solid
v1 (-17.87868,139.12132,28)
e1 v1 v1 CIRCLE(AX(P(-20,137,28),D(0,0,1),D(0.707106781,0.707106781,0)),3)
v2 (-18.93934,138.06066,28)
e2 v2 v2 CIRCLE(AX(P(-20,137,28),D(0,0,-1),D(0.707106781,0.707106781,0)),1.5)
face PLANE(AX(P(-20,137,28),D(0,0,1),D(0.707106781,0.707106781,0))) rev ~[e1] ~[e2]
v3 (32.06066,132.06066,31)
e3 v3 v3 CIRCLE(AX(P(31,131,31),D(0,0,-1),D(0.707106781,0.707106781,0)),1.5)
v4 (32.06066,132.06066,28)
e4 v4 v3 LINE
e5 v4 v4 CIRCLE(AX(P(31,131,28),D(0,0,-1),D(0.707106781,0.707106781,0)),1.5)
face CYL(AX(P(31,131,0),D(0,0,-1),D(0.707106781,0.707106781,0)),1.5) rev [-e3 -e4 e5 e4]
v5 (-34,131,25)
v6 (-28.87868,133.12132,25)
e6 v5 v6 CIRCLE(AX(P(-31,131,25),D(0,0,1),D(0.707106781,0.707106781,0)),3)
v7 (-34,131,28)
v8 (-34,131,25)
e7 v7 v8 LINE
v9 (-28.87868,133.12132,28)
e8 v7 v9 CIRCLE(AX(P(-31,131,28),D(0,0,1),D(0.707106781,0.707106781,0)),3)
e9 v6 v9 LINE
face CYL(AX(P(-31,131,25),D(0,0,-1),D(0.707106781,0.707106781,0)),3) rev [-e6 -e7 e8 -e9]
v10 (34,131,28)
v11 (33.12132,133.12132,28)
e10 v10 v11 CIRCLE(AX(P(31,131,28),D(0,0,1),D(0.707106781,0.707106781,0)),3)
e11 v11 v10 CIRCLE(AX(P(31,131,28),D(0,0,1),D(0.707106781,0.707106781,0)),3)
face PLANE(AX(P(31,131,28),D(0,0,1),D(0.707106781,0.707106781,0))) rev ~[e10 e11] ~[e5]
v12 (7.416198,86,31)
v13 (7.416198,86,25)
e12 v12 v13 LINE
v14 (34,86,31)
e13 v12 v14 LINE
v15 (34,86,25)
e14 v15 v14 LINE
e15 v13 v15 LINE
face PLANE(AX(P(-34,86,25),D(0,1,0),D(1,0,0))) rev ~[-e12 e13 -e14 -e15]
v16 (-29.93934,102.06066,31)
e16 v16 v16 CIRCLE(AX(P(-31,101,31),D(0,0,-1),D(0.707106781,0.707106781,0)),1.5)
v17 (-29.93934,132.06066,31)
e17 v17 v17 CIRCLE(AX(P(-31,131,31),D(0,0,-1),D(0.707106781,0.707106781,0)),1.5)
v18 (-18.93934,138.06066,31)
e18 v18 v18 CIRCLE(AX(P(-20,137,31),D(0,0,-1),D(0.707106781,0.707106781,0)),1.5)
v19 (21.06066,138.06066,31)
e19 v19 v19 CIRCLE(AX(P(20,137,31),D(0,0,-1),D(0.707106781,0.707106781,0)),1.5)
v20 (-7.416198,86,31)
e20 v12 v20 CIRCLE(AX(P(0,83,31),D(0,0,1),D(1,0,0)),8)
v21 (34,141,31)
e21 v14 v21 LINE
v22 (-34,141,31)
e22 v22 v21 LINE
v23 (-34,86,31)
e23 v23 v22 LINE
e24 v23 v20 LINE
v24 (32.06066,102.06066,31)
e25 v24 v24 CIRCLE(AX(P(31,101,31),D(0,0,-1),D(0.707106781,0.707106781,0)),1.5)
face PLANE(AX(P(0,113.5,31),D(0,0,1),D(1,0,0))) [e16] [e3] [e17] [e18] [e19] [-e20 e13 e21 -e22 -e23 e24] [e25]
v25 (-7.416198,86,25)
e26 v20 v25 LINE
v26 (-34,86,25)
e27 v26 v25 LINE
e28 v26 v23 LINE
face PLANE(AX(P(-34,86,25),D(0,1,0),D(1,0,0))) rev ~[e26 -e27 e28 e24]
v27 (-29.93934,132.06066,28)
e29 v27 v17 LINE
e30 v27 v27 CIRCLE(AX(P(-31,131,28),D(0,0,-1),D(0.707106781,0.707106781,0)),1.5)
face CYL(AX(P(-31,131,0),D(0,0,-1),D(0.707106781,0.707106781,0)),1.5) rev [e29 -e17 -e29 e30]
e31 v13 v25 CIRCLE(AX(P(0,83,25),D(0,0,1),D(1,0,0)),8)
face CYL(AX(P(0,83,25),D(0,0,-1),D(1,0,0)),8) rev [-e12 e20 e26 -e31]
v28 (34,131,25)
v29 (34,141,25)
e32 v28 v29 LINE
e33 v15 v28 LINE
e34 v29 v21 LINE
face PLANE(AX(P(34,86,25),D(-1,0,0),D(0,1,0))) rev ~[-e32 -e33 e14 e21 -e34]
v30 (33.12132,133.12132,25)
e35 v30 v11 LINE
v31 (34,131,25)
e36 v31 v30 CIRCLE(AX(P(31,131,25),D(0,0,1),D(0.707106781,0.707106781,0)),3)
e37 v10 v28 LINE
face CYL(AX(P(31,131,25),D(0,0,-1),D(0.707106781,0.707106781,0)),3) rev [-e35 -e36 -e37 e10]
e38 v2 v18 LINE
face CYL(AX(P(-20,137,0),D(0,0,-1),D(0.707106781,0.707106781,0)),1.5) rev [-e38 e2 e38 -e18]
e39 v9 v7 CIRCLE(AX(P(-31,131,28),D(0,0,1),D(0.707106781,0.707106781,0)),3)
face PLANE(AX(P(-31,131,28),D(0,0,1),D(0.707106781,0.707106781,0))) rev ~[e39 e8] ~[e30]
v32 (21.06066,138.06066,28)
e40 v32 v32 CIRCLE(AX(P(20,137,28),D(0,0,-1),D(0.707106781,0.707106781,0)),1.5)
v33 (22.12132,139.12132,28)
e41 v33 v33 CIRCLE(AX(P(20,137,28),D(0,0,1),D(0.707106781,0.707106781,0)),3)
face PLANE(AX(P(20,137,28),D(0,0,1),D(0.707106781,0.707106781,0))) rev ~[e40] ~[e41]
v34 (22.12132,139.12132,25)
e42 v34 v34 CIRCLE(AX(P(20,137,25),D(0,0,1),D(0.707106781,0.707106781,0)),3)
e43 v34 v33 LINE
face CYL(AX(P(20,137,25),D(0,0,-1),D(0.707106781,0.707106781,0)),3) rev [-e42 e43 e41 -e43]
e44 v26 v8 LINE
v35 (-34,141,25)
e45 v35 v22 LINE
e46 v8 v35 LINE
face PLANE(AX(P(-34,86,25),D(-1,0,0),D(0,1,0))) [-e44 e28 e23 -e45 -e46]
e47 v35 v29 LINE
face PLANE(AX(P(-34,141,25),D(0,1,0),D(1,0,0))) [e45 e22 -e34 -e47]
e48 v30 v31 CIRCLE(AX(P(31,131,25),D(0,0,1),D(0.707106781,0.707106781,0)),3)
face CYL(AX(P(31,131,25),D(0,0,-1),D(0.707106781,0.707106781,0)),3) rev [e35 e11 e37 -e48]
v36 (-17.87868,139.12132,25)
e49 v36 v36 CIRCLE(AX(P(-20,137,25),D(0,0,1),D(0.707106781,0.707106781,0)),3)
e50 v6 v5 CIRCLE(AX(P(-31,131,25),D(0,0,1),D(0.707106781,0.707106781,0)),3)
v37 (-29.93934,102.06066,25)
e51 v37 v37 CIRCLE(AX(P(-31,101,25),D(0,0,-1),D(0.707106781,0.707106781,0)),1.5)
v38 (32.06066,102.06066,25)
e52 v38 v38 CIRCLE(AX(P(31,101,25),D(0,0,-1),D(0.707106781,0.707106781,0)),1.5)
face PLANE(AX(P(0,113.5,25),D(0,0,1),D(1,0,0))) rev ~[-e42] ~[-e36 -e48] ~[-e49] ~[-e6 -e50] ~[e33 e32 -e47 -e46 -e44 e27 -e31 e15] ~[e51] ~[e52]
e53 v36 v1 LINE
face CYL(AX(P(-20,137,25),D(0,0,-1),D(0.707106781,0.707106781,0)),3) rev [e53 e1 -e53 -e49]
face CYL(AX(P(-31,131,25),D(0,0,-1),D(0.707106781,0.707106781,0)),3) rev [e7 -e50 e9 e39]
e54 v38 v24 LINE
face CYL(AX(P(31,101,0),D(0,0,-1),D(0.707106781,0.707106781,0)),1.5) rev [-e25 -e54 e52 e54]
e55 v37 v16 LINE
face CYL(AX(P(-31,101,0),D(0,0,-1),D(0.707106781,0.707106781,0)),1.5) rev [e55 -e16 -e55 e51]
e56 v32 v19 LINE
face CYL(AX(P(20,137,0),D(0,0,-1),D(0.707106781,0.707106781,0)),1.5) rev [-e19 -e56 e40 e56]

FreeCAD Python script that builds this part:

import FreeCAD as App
import Part
import Sketcher


def add_polygon(sketch, points):
    """Adds a closed chain of lines whose ends are joined by coincident constraints."""
    first, n = sketch.GeometryCount, len(points)
    for a, b in zip(points, points[1:] + points[:1]):
        sketch.addGeometry(Part.LineSegment(App.Vector(*a, 0), App.Vector(*b, 0)), False)
    for i in range(n):
        sketch.addConstraint(Sketcher.Constraint("Coincident", first + i, 2, first + (i + 1) % n, 1))

doc = App.newDocument("Part")
body = doc.addObject("PartDesign::Body", "Body")

# Sketch on XY plane
sketch1 = body.newObject("Sketcher::SketchObject", "Sketch")
sketch1.AttachmentSupport = (doc.getObject("XY_Plane"), [""])
sketch1.MapMode = "FlatFace"
sketch1.addGeometry(Part.Circle(App.Vector(0, 0, 0), App.Vector(0, 0, 1), 1.5), False)
sketch1.addConstraint([
    Sketcher.Constraint("Coincident", 0, 3, -1, 1),
    Sketcher.Constraint("Diameter", 0, 3.0),
])
pad1 = body.newObject("PartDesign::Pad", "Pad")
pad1.Profile = sketch1
pad1.Length = 50
body2 = doc.addObject("PartDesign::Body", "Body001")
doc.recompute()

body.Placement = App.Placement(App.Vector(20, 137, 0), App.Rotation(App.Vector(0, 0, 1), 45))
boolean = body2.newObject("PartDesign::Boolean", "Boolean")
boolean.Type = "Fuse"
boolean.addObjects([body])
body3 = doc.addObject("PartDesign::Body", "Body002")

# Sketch on XY plane
sketch2 = body3.newObject("Sketcher::SketchObject", "Sketch001")
sketch2.AttachmentSupport = (doc.getObject("XY_Plane002"), [""])
sketch2.MapMode = "FlatFace"
sketch2.addGeometry(Part.Circle(App.Vector(0, 0, 0), App.Vector(0, 0, 1), 1.5), False)
sketch2.addConstraint([
    Sketcher.Constraint("Coincident", 0, 3, -1, 1),
    Sketcher.Constraint("Diameter", 0, 3.0),
])
pad2 = body3.newObject("PartDesign::Pad", "Pad001")
pad2.Profile = sketch2
pad2.Length = 50
body4 = doc.addObject("PartDesign::Body", "Body003")
body4.AllowCompound = True
doc.recompute()

body3.Placement = App.Placement(App.Vector(-20, 137, 0), App.Rotation(App.Vector(0, 0, 1), 45))
boolean2 = body4.newObject("PartDesign::Boolean", "Boolean001")
boolean2.Type = "Fuse"
boolean2.addObjects([body3])
doc.recompute()

boolean3 = body4.newObject("PartDesign::Boolean", "Boolean002")
boolean3.Type = "Fuse"
boolean3.addObjects([body2])
body5 = doc.addObject("PartDesign::Body", "Body004")

# Sketch on XY plane
sketch3 = body5.newObject("Sketcher::SketchObject", "Sketch002")
sketch3.AttachmentSupport = (doc.getObject("XY_Plane004"), [""])
sketch3.MapMode = "FlatFace"
sketch3.addGeometry(Part.Circle(App.Vector(0, 0, 0), App.Vector(0, 0, 1), 1.5), False)
sketch3.addConstraint([
    Sketcher.Constraint("Coincident", 0, 3, -1, 1),
    Sketcher.Constraint("Diameter", 0, 3.0),
])
pad3 = body5.newObject("PartDesign::Pad", "Pad002")
pad3.Profile = sketch3
pad3.Length = 50
body6 = doc.addObject("PartDesign::Body", "Body005")
doc.recompute()

body5.Placement = App.Placement(App.Vector(31, 131, 0), App.Rotation(App.Vector(0, 0, 1), 45))
boolean4 = body6.newObject("PartDesign::Boolean", "Boolean003")
boolean4.Type = "Fuse"
boolean4.addObjects([body5])
body7 = doc.addObject("PartDesign::Body", "Body006")

# Sketch on XY plane
sketch4 = body7.newObject("Sketcher::SketchObject", "Sketch003")
sketch4.AttachmentSupport = (doc.getObject("XY_Plane006"), [""])
sketch4.MapMode = "FlatFace"
sketch4.addGeometry(Part.Circle(App.Vector(0, 0, 0), App.Vector(0, 0, 1), 1.5), False)
sketch4.addConstraint([
    Sketcher.Constraint("Coincident", 0, 3, -1, 1),
    Sketcher.Constraint("Diameter", 0, 3.0),
])
pad4 = body7.newObject("PartDesign::Pad", "Pad003")
pad4.Profile = sketch4
pad4.Length = 50
body8 = doc.addObject("PartDesign::Body", "Body007")
body8.AllowCompound = True
doc.recompute()

body7.Placement = App.Placement(App.Vector(-31, 131, 0), App.Rotation(App.Vector(0, 0, 1), 45))
boolean5 = body8.newObject("PartDesign::Boolean", "Boolean004")
boolean5.Type = "Fuse"
boolean5.addObjects([body7])
doc.recompute()

boolean6 = body8.newObject("PartDesign::Boolean", "Boolean005")
boolean6.Type = "Fuse"
boolean6.addObjects([body6])
body9 = doc.addObject("PartDesign::Body", "Body008")

# Sketch on XY plane
sketch5 = body9.newObject("Sketcher::SketchObject", "Sketch004")
sketch5.AttachmentSupport = (doc.getObject("XY_Plane008"), [""])
sketch5.MapMode = "FlatFace"
sketch5.addGeometry(Part.Circle(App.Vector(0, 0, 0), App.Vector(0, 0, 1), 1.5), False)
sketch5.addConstraint([
    Sketcher.Constraint("Coincident", 0, 3, -1, 1),
    Sketcher.Constraint("Diameter", 0, 3.0),
])
pad5 = body9.newObject("PartDesign::Pad", "Pad004")
pad5.Profile = sketch5
pad5.Length = 50
body10 = doc.addObject("PartDesign::Body", "Body009")
doc.recompute()

body9.Placement = App.Placement(App.Vector(31, 101, 0), App.Rotation(App.Vector(0, 0, 1), 45))
boolean7 = body10.newObject("PartDesign::Boolean", "Boolean006")
boolean7.Type = "Fuse"
boolean7.addObjects([body9])
body11 = doc.addObject("PartDesign::Body", "Body010")

# Sketch on XY plane
sketch6 = body11.newObject("Sketcher::SketchObject", "Sketch005")
sketch6.AttachmentSupport = (doc.getObject("XY_Plane010"), [""])
sketch6.MapMode = "FlatFace"
sketch6.addGeometry(Part.Circle(App.Vector(0, 0, 0), App.Vector(0, 0, 1), 1.5), False)
sketch6.addConstraint([
    Sketcher.Constraint("Coincident", 0, 3, -1, 1),
    Sketcher.Constraint("Diameter", 0, 3.0),
])
pad6 = body11.newObject("PartDesign::Pad", "Pad005")
pad6.Profile = sketch6
pad6.Length = 50
body12 = doc.addObject("PartDesign::Body", "Body011")
body12.AllowCompound = True
doc.recompute()

body11.Placement = App.Placement(App.Vector(-31, 101, 0), App.Rotation(App.Vector(0, 0, 1), 45))
boolean8 = body12.newObject("PartDesign::Boolean", "Boolean007")
boolean8.Type = "Fuse"
boolean8.addObjects([body11])
doc.recompute()

boolean9 = body12.newObject("PartDesign::Boolean", "Boolean008")
boolean9.Type = "Fuse"
boolean9.addObjects([body10])
doc.recompute()

boolean10 = body12.newObject("PartDesign::Boolean", "Boolean009")
boolean10.Type = "Fuse"
boolean10.addObjects([body4])
doc.recompute()

boolean11 = body12.newObject("PartDesign::Boolean", "Boolean010")
boolean11.Type = "Fuse"
boolean11.addObjects([body8])
body13 = doc.addObject("PartDesign::Body", "Body012")

# Sketch on XY plane
sketch7 = body13.newObject("Sketcher::SketchObject", "Sketch006")
sketch7.AttachmentSupport = (doc.getObject("XY_Plane012"), [""])
sketch7.MapMode = "FlatFace"
sketch7.addGeometry(Part.Circle(App.Vector(0, 0, 0), App.Vector(0, 0, 1), 3), False)
sketch7.addConstraint([
    Sketcher.Constraint("Coincident", 0, 3, -1, 1),
    Sketcher.Constraint("Diameter", 0, 6.0),
])
pad7 = body13.newObject("PartDesign::Pad", "Pad006")
pad7.Profile = sketch7
pad7.Length = 3
body14 = doc.addObject("PartDesign::Body", "Body013")
doc.recompute()

body13.Placement = App.Placement(App.Vector(31, 131, 0), App.Rotation(App.Vector(0, 0, 1), 45))
boolean12 = body14.newObject("PartDesign::Boolean", "Boolean011")
boolean12.Type = "Fuse"
boolean12.addObjects([body13])
body15 = doc.addObject("PartDesign::Body", "Body014")

# Sketch on XY plane
sketch8 = body15.newObject("Sketcher::SketchObject", "Sketch007")
sketch8.AttachmentSupport = (doc.getObject("XY_Plane014"), [""])
sketch8.MapMode = "FlatFace"
sketch8.addGeometry(Part.Circle(App.Vector(0, 0, 0), App.Vector(0, 0, 1), 3), False)
sketch8.addConstraint([
    Sketcher.Constraint("Coincident", 0, 3, -1, 1),
    Sketcher.Constraint("Diameter", 0, 6.0),
])
pad8 = body15.newObject("PartDesign::Pad", "Pad007")
pad8.Profile = sketch8
pad8.Length = 3
body16 = doc.addObject("PartDesign::Body", "Body015")
body16.AllowCompound = True
doc.recompute()

body15.Placement = App.Placement(App.Vector(-31, 131, 0), App.Rotation(App.Vector(0, 0, 1), 45))
boolean13 = body16.newObject("PartDesign::Boolean", "Boolean012")
boolean13.Type = "Fuse"
boolean13.addObjects([body15])
doc.recompute()

boolean14 = body16.newObject("PartDesign::Boolean", "Boolean013")
boolean14.Type = "Fuse"
boolean14.addObjects([body14])
body17 = doc.addObject("PartDesign::Body", "Body016")
body17.AllowCompound = True
doc.recompute()

body16.Placement = App.Placement(App.Vector(0, 0, 25), App.Rotation(App.Vector(0, 0, 1), 0))
boolean15 = body17.newObject("PartDesign::Boolean", "Boolean014")
boolean15.Type = "Fuse"
boolean15.addObjects([body16])
body18 = doc.addObject("PartDesign::Body", "Body017")

# Sketch on XY plane
sketch9 = body18.newObject("Sketcher::SketchObject", "Sketch008")
sketch9.AttachmentSupport = (doc.getObject("XY_Plane017"), [""])
sketch9.MapMode = "FlatFace"
sketch9.addGeometry(Part.Circle(App.Vector(0, 0, 0), App.Vector(0, 0, 1), 3), False)
sketch9.addConstraint([
    Sketcher.Constraint("Coincident", 0, 3, -1, 1),
    Sketcher.Constraint("Diameter", 0, 6.0),
])
pad9 = body18.newObject("PartDesign::Pad", "Pad008")
pad9.Profile = sketch9
pad9.Length = 3
body19 = doc.addObject("PartDesign::Body", "Body018")
doc.recompute()

body18.Placement = App.Placement(App.Vector(31, 101, 0), App.Rotation(App.Vector(0, 0, 1), 45))
boolean16 = body19.newObject("PartDesign::Boolean", "Boolean015")
boolean16.Type = "Fuse"
boolean16.addObjects([body18])
body20 = doc.addObject("PartDesign::Body", "Body019")

# Sketch on XY plane
sketch10 = body20.newObject("Sketcher::SketchObject", "Sketch009")
sketch10.AttachmentSupport = (doc.getObject("XY_Plane019"), [""])
sketch10.MapMode = "FlatFace"
sketch10.addGeometry(Part.Circle(App.Vector(0, 0, 0), App.Vector(0, 0, 1), 3), False)
sketch10.addConstraint([
    Sketcher.Constraint("Coincident", 0, 3, -1, 1),
    Sketcher.Constraint("Diameter", 0, 6.0),
])
pad10 = body20.newObject("PartDesign::Pad", "Pad009")
pad10.Profile = sketch10
pad10.Length = 3
body21 = doc.addObject("PartDesign::Body", "Body020")
body21.AllowCompound = True
doc.recompute()

body20.Placement = App.Placement(App.Vector(-31, 101, 0), App.Rotation(App.Vector(0, 0, 1), 45))
boolean17 = body21.newObject("PartDesign::Boolean", "Boolean016")
boolean17.Type = "Fuse"
boolean17.addObjects([body20])
doc.recompute()

boolean18 = body21.newObject("PartDesign::Boolean", "Boolean017")
boolean18.Type = "Fuse"
boolean18.addObjects([body19])
body22 = doc.addObject("PartDesign::Body", "Body021")
body22.AllowCompound = True
doc.recompute()

body21.Placement = App.Placement(App.Vector(0, 0, 21), App.Rotation(App.Vector(0, 0, 1), 0))
boolean19 = body22.newObject("PartDesign::Boolean", "Boolean018")
boolean19.Type = "Fuse"
boolean19.addObjects([body21])
body23 = doc.addObject("PartDesign::Body", "Body022")

# Sketch on XY plane
sketch11 = body23.newObject("Sketcher::SketchObject", "Sketch010")
sketch11.AttachmentSupport = (doc.getObject("XY_Plane022"), [""])
sketch11.MapMode = "FlatFace"
sketch11.addGeometry(Part.Circle(App.Vector(0, 0, 0), App.Vector(0, 0, 1), 3), False)
sketch11.addConstraint([
    Sketcher.Constraint("Coincident", 0, 3, -1, 1),
    Sketcher.Constraint("Diameter", 0, 6.0),
])
pad11 = body23.newObject("PartDesign::Pad", "Pad010")
pad11.Profile = sketch11
pad11.Length = 3
body24 = doc.addObject("PartDesign::Body", "Body023")
doc.recompute()

body23.Placement = App.Placement(App.Vector(20, 137, 0), App.Rotation(App.Vector(0, 0, 1), 45))
boolean20 = body24.newObject("PartDesign::Boolean", "Boolean019")
boolean20.Type = "Fuse"
boolean20.addObjects([body23])
body25 = doc.addObject("PartDesign::Body", "Body024")

# Sketch on XY plane
sketch12 = body25.newObject("Sketcher::SketchObject", "Sketch011")
sketch12.AttachmentSupport = (doc.getObject("XY_Plane024"), [""])
sketch12.MapMode = "FlatFace"
sketch12.addGeometry(Part.Circle(App.Vector(0, 0, 0), App.Vector(0, 0, 1), 3), False)
sketch12.addConstraint([
    Sketcher.Constraint("Coincident", 0, 3, -1, 1),
    Sketcher.Constraint("Diameter", 0, 6.0),
])
pad12 = body25.newObject("PartDesign::Pad", "Pad011")
pad12.Profile = sketch12
pad12.Length = 3
body26 = doc.addObject("PartDesign::Body", "Body025")
body26.AllowCompound = True
doc.recompute()

body25.Placement = App.Placement(App.Vector(-20, 137, 0), App.Rotation(App.Vector(0, 0, 1), 45))
boolean21 = body26.newObject("PartDesign::Boolean", "Boolean020")
boolean21.Type = "Fuse"
boolean21.addObjects([body25])
doc.recompute()

boolean22 = body26.newObject("PartDesign::Boolean", "Boolean021")
boolean22.Type = "Fuse"
boolean22.addObjects([body24])
body27 = doc.addObject("PartDesign::Body", "Body026")
body27.AllowCompound = True
doc.recompute()

body26.Placement = App.Placement(App.Vector(0, 0, 25), App.Rotation(App.Vector(0, 0, 1), 0))
boolean23 = body27.newObject("PartDesign::Boolean", "Boolean022")
boolean23.Type = "Fuse"
boolean23.addObjects([body26])
doc.recompute()

boolean24 = body27.newObject("PartDesign::Boolean", "Boolean023")
boolean24.Type = "Fuse"
boolean24.addObjects([body17])
doc.recompute()

boolean25 = body27.newObject("PartDesign::Boolean", "Boolean024")
boolean25.Type = "Fuse"
boolean25.addObjects([body22])
body28 = doc.addObject("PartDesign::Body", "Body027")

# Sketch on XY plane
sketch13 = body28.newObject("Sketcher::SketchObject", "Sketch012")
sketch13.AttachmentSupport = (doc.getObject("XY_Plane027"), [""])
sketch13.MapMode = "FlatFace"
sketch13.AttachmentOffset = App.Placement(App.Vector(0, 0, 25), App.Rotation())
sketch13.addGeometry(Part.Circle(App.Vector(0, 83, 0), App.Vector(0, 0, 1), 8), False)
sketch13.addConstraint([
    Sketcher.Constraint("PointOnObject", 0, 3, -2),
    Sketcher.Constraint("Diameter", 0, 16.0),
    Sketcher.Constraint("DistanceY", -1, 1, 0, 3, 83.0),
])
pad13 = body28.newObject("PartDesign::Pad", "Pad012")
pad13.Profile = sketch13
pad13.Length = 6
body29 = doc.addObject("PartDesign::Body", "Body028")

# Sketch on XY plane
sketch14 = body29.newObject("Sketcher::SketchObject", "Sketch013")
sketch14.AttachmentSupport = (doc.getObject("XY_Plane028"), [""])
sketch14.MapMode = "FlatFace"
sketch14.AttachmentOffset = App.Placement(App.Vector(0, 0, 25), App.Rotation())
add_polygon(sketch14, [(-34, 141), (-34, 86), (34, 86), (34, 141)])  # lines 0-3
sketch14.addConstraint([
    Sketcher.Constraint("Vertical", 0),
    Sketcher.Constraint("Horizontal", 1),
    Sketcher.Constraint("Vertical", 2),
    Sketcher.Constraint("Horizontal", 3),
    Sketcher.Constraint("DistanceX", 1, 1, 1, 2, 68.0),
    Sketcher.Constraint("DistanceY", 0, 2, 0, 1, 55.0),
    Sketcher.Constraint("DistanceX", 0, 2, -1, 1, 34.0),
    Sketcher.Constraint("DistanceY", -1, 1, 0, 2, 86.0),
])
pad14 = body29.newObject("PartDesign::Pad", "Pad013")
pad14.Profile = sketch14
pad14.Length = 6
doc.recompute()

boolean26 = body29.newObject("PartDesign::Boolean", "Boolean025")
boolean26.Type = "Cut"
boolean26.addObjects([body28])
doc.recompute()

boolean27 = body29.newObject("PartDesign::Boolean", "Boolean026")
boolean27.Type = "Cut"
boolean27.addObjects([body27])
doc.recompute()

boolean28 = body29.newObject("PartDesign::Boolean", "Boolean027")
boolean28.Type = "Cut"
boolean28.addObjects([body12])

doc.recompute()
